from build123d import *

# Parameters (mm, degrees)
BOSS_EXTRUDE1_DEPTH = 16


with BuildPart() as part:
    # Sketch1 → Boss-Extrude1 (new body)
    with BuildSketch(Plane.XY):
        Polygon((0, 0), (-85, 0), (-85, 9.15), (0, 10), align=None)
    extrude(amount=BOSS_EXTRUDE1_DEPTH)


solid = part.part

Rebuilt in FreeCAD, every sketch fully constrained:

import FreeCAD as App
import Part
import Sketcher
from FreeCAD import Vector
Q = App.Units.Quantity


def add_polygon(sketch, points):
    """Adds a closed chain of lines whose ends are joined by coincident constraints."""
    first, n = sketch.GeometryCount, len(points)
    for a, b in zip(points, points[1:] + points[:1]):
        sketch.addGeometry(Part.LineSegment(App.Vector(*a, 0), App.Vector(*b, 0)), False)
    for i in range(n):
        sketch.addConstraint(Sketcher.Constraint("Coincident", first + i, 2, first + (i + 1) % n, 1))

doc = App.newDocument("Part")
params = doc.addObject("Spreadsheet::Sheet", "Params")
for row, (alias, value) in enumerate([
    ("sketch1_width", "85 mm"),
    ("sketch1_height", "10 mm"),
    ("sketch1_height2", "9.15 mm"),
    ("pad1_length", "16 mm"),
], start=1):
    params.set(f"A{row}", alias)
    params.set(f"B{row}", "=" + value)
    params.setAlias(f"B{row}", alias)

body = doc.addObject("PartDesign::Body", "Body")

# Sketch on XY plane
sketch1 = body.newObject("Sketcher::SketchObject", "Sketch")
sketch1.AttachmentSupport = (doc.getObject("XY_Plane"), [""])
sketch1.MapMode = "FlatFace"
add_polygon(sketch1, [(-85, 0), (0, 0), (0, 10), (-85, 9)])  # lines 0-3
sketch1.addConstraint([
    Sketcher.Constraint("Horizontal", 0),
    Sketcher.Constraint("Vertical", 1),
    Sketcher.Constraint("Vertical", 3),
    Sketcher.Constraint("Coincident", 0, 2, -1, 1),
    Sketcher.Constraint("DistanceX", 0, 1, 0, 2, Q("85 mm")),
    Sketcher.Constraint("DistanceY", 1, 1, 1, 2, Q("10 mm")),
    Sketcher.Constraint("DistanceY", 3, 2, 3, 1, Q("9.15 mm")),
])
sketch1.setExpression("Constraints[8]", "Params.sketch1_width")
sketch1.setExpression("Constraints[9]", "Params.sketch1_height")
sketch1.setExpression("Constraints[10]", "Params.sketch1_height2")
pad1 = body.newObject("PartDesign::Pad", "Pad")
pad1.Profile = sketch1
pad1.setExpression("Length", "Params.pad1_length")

doc.recompute()
